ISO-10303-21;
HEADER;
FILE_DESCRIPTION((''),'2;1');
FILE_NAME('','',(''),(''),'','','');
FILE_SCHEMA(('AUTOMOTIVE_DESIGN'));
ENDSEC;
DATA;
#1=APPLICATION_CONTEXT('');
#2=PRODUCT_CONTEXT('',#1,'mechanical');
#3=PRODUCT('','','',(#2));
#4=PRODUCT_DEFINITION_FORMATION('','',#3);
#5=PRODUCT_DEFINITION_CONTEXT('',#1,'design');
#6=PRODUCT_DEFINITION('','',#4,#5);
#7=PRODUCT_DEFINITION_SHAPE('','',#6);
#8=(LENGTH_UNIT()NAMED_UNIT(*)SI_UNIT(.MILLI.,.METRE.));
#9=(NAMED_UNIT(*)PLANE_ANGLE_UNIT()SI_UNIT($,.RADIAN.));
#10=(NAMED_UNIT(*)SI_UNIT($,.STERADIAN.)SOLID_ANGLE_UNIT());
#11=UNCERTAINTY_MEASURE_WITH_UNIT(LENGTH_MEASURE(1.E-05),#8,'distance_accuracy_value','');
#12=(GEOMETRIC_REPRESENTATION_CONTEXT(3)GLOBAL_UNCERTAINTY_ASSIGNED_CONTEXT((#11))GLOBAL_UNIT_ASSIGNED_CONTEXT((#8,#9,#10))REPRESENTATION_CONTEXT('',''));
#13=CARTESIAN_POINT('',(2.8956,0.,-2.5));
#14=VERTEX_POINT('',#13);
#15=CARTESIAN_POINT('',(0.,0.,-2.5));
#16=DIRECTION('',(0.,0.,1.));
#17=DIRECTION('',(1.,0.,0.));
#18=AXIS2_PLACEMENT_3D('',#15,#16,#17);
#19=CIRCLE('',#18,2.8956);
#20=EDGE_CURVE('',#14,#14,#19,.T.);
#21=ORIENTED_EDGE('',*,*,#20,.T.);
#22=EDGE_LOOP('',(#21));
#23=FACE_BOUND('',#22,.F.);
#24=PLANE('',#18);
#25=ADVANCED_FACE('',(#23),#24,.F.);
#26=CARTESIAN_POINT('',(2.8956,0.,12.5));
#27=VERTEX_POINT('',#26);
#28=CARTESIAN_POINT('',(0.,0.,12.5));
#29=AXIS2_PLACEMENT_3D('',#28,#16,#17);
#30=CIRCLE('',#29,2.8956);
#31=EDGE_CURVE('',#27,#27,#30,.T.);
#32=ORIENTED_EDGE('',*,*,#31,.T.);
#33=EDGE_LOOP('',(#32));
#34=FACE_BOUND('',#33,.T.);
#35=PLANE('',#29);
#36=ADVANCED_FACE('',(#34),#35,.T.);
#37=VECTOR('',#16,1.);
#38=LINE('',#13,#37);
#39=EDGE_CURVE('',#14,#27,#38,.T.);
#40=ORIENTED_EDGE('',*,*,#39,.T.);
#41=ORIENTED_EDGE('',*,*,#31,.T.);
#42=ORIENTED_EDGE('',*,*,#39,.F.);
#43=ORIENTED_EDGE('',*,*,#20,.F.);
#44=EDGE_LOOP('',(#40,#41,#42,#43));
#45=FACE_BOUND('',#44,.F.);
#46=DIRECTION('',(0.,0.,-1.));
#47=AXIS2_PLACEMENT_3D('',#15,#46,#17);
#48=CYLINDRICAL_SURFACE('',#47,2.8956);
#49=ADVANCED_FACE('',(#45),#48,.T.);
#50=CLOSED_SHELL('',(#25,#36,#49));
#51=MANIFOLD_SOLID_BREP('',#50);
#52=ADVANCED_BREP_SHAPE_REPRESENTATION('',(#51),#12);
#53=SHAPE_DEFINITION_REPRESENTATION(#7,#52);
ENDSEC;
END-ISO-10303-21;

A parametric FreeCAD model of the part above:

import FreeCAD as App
import Part
import Sketcher
from FreeCAD import Vector

doc = App.newDocument("Part")
body = doc.addObject("PartDesign::Body", "Body")

# Sketch on XY plane
sketch1 = doc.addObject("Sketcher::SketchObject", "Sketch")
body.addObject(sketch1)
sketch1.AttachmentSupport = (doc.XY_Plane, [""])
sketch1.MapMode = "FlatFace"
sketch1.AttachmentOffset = App.Placement(Vector(0, 0, -2.5), App.Rotation())
sketch1.addGeometry(Part.Circle(Vector(0, 0, 0), Vector(0, 0, 1), 2.9), False)
sketch1.addConstraint(Sketcher.Constraint("Coincident", 0, 3, -1, 1))
sketch1.addConstraint(Sketcher.Constraint("Diameter", 0, 5.7912))
pad1 = doc.addObject("PartDesign::Pad", "Pad")
body.addObject(pad1)
pad1.Profile = sketch1
pad1.Length = 15

doc.recompute()
